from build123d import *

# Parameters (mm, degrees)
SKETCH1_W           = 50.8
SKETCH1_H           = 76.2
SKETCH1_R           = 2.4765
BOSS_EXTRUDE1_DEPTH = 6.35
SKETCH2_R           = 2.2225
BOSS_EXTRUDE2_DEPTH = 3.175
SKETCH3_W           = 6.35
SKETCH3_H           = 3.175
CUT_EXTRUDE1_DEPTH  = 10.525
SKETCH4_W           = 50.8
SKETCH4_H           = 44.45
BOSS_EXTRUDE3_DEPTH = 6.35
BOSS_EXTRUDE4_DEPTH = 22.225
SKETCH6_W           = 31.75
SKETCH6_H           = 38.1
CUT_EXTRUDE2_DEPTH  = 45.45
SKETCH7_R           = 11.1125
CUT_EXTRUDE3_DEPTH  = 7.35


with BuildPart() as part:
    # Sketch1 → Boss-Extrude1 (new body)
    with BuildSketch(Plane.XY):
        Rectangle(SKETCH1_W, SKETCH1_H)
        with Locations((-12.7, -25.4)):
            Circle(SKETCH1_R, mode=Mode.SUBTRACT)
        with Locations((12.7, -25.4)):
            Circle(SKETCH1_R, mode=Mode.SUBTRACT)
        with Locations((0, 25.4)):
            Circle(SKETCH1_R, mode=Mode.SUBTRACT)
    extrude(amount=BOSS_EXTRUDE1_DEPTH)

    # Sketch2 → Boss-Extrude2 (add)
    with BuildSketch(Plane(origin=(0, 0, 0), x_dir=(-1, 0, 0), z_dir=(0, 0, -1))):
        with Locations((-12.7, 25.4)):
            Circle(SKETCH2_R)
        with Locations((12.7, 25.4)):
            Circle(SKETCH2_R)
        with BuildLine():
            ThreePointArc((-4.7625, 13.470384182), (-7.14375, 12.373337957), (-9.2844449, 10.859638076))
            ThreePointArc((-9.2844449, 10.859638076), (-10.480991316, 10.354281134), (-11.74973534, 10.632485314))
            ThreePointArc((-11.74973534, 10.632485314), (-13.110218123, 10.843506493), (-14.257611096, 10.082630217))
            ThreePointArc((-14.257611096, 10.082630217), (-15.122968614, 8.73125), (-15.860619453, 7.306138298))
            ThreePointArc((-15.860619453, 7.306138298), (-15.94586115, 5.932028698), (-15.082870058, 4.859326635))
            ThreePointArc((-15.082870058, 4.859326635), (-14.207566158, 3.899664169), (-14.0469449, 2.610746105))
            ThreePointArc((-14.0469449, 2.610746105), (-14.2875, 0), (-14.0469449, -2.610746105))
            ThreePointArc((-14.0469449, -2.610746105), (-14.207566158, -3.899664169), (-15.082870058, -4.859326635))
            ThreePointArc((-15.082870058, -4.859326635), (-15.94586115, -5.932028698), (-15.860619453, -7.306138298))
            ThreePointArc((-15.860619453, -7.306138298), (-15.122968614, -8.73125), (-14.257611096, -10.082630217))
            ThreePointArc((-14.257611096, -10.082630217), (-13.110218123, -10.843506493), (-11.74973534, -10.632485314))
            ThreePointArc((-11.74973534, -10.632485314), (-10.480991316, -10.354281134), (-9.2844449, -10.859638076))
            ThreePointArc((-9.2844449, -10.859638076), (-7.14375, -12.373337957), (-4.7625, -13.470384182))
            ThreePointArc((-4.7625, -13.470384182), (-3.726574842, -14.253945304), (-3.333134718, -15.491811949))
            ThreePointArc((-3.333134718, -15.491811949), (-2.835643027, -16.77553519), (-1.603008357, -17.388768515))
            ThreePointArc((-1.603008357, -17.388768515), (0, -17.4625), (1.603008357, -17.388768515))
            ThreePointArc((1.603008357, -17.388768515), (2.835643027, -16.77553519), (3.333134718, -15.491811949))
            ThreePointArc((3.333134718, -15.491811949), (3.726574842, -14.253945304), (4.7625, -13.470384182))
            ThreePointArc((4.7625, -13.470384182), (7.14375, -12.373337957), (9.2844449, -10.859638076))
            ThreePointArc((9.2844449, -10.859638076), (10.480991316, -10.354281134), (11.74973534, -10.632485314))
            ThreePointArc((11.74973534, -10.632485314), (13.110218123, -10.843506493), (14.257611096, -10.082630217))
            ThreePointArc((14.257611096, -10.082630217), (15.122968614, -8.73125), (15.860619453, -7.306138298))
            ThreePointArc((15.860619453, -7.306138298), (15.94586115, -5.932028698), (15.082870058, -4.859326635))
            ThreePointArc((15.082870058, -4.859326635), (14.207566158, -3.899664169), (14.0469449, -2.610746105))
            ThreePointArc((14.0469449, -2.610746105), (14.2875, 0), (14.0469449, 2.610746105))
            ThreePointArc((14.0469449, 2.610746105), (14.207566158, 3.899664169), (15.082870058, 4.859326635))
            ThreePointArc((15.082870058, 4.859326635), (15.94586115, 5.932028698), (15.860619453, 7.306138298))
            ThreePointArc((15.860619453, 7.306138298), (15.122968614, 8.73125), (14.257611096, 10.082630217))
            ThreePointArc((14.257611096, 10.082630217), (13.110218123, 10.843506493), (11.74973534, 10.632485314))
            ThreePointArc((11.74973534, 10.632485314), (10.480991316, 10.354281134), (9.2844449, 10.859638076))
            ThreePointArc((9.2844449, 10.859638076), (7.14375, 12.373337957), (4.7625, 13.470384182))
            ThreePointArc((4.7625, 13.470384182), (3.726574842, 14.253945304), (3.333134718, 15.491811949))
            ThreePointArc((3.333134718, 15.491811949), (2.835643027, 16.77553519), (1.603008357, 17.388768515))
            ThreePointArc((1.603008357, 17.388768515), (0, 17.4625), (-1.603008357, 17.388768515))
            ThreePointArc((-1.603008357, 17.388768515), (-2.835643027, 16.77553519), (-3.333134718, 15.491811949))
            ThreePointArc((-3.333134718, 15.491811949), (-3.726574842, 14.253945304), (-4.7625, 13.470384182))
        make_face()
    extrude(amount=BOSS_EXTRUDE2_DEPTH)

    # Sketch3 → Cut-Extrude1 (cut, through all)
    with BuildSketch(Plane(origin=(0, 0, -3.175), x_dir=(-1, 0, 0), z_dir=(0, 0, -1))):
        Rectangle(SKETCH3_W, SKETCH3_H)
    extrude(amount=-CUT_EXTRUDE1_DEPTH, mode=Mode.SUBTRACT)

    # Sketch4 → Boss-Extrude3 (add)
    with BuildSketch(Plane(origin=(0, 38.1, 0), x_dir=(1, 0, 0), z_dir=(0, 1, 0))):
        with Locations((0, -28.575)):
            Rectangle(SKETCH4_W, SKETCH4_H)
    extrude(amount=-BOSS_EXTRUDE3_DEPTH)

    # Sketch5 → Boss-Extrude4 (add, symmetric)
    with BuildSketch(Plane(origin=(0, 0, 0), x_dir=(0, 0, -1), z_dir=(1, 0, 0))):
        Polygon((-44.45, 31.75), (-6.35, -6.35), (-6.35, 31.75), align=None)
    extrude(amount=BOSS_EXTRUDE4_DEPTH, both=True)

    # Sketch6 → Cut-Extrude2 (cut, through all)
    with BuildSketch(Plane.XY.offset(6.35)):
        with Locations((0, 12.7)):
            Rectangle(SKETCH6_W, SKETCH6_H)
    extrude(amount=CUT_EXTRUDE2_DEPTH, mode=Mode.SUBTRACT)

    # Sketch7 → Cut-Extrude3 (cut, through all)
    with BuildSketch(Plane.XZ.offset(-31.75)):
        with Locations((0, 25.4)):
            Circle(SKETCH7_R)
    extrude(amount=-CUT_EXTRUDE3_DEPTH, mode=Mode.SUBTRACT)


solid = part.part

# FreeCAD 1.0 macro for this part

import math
import FreeCAD as App
import Part
import Sketcher
Q = App.Units.Quantity

doc = App.newDocument("Part")
body = doc.addObject("PartDesign::Body", "Body")

# Sketch on XY plane
sketch1 = body.newObject("Sketcher::SketchObject", "Sketch")
sketch1.AttachmentSupport = (doc.getObject("XY_Plane"), [""])
sketch1.MapMode = "FlatFace"
sketch1.addGeometry([
    Part.LineSegment(App.Vector(-25.4, 38.1, 0), App.Vector(-25.4, -38.1, 0)),  # 0
    Part.LineSegment(App.Vector(-25.4, -38.1, 0), App.Vector(25.4, -38.1, 0)),  # 1
    Part.LineSegment(App.Vector(25.4, -38.1, 0), App.Vector(25.4, 38.1, 0)),  # 2
    Part.LineSegment(App.Vector(25.4, 38.1, 0), App.Vector(-25.4, 38.1, 0)),  # 3
    Part.Circle(App.Vector(-12.7, -25.4, 0), App.Vector(0, 0, 1), 2.5),  # 4
    Part.Circle(App.Vector(12.7, -25.4, 0), App.Vector(0, 0, 1), 2.5),  # 5
    Part.Circle(App.Vector(0, 25.4, 0), App.Vector(0, 0, 1), 2.5),  # 6
], False)
sketch1.addConstraint([
    Sketcher.Constraint("Coincident", 0, 2, 1, 1),
    Sketcher.Constraint("Coincident", 1, 2, 2, 1),
    Sketcher.Constraint("Coincident", 2, 2, 3, 1),
    Sketcher.Constraint("Coincident", 3, 2, 0, 1),
    Sketcher.Constraint("Vertical", 0),
    Sketcher.Constraint("Horizontal", 1),
    Sketcher.Constraint("Vertical", 2),
    Sketcher.Constraint("Horizontal", 3),
    Sketcher.Constraint("Equal", 4, 5),
    Sketcher.Constraint("Equal", 5, 6),
    Sketcher.Constraint("Symmetric", 0, 2, 2, 2, -1, 1),
    Sketcher.Constraint("Symmetric", 4, 3, 5, 3, -2),
    Sketcher.Constraint("PointOnObject", 6, 3, -2),
    Sketcher.Constraint("DistanceX", 1, 1, 1, 2, Q("2 in")),
    Sketcher.Constraint("DistanceY", 0, 2, 0, 1, Q("3 in")),
    Sketcher.Constraint("Diameter", 4, Q("0.195 in")),
    Sketcher.Constraint("DistanceY", 4, 3, -1, 1, Q("1 in")),
    Sketcher.Constraint("DistanceY", -1, 1, 6, 3, Q("1 in")),
    Sketcher.Constraint("DistanceX", 4, 3, 5, 3, Q("1 in")),
])
pad1 = body.newObject("PartDesign::Pad", "Pad")
pad1.Profile = sketch1
pad1.Length = Q("0.25 in")

# Sketch on XY plane
sketch2 = body.newObject("Sketcher::SketchObject", "Sketch001")
sketch2.AttachmentSupport = (doc.getObject("XY_Plane"), [""])
sketch2.MapMode = "FlatFace"
sketch2.addGeometry([
    Part.Circle(App.Vector(12.7, 25.4, 0), App.Vector(0, 0, 1), 2.2),  # 0
    Part.Circle(App.Vector(-12.7, 25.4, 0), App.Vector(0, 0, 1), 2.2),  # 1
    Part.ArcOfCircle(Part.Circle(App.Vector(0, 0, 0), App.Vector(0, 0, 1), 14.3), math.radians(49), math.radians(71)),  # 2
    Part.ArcOfCircle(Part.Circle(App.Vector(10.7, 12.5, 0), App.Vector(0, 0, 1), 2.1), math.radians(-131), math.radians(-60)),  # 3
    Part.ArcOfCircle(Part.Circle(App.Vector(12.7, 9, 0), App.Vector(0, 0, 1), 1.9), math.radians(35), math.radians(120)),  # 4
    Part.ArcOfCircle(Part.Circle(App.Vector(0, 0, 0), App.Vector(0, 0, 1), 17.5), math.radians(24.73), math.radians(35.27)),  # 5
    Part.ArcOfCircle(Part.Circle(App.Vector(14.1, 6.5, 0), App.Vector(0, 0, 1), 1.9), math.radians(-60), math.radians(25)),  # 6
    Part.ArcOfCircle(Part.Circle(App.Vector(16.2, 3, 0), App.Vector(0, 0, 1), 2.1), math.radians(120), math.radians(191)),  # 7
    Part.ArcOfCircle(Part.Circle(App.Vector(0, 0, 0), App.Vector(0, 0, 1), 14.3), math.radians(-11), math.radians(11)),  # 8
    Part.ArcOfCircle(Part.Circle(App.Vector(16.2, -3, 0), App.Vector(0, 0, 1), 2.1), math.radians(169), math.radians(240)),  # 9
    Part.ArcOfCircle(Part.Circle(App.Vector(14.1, -6.5, 0), App.Vector(0, 0, 1), 1.9), math.radians(-25), math.radians(60)),  # 10
    Part.ArcOfCircle(Part.Circle(App.Vector(0, 0, 0), App.Vector(0, 0, 1), 17.5), math.radians(-35.27), math.radians(-24.73)),  # 11
    Part.ArcOfCircle(Part.Circle(App.Vector(12.7, -9, 0), App.Vector(0, 0, 1), 1.9), math.radians(-120), math.radians(-35)),  # 12
    Part.ArcOfCircle(Part.Circle(App.Vector(10.7, -12.5, 0), App.Vector(0, 0, 1), 2.1), math.radians(60), math.radians(131)),  # 13
    Part.ArcOfCircle(Part.Circle(App.Vector(0, 0, 0), App.Vector(0, 0, 1), 14.3), math.radians(-71), math.radians(-49)),  # 14
    Part.ArcOfCircle(Part.Circle(App.Vector(5.5, -15.5, 0), App.Vector(0, 0, 1), 2.1), math.radians(109), math.radians(180)),  # 15
    Part.ArcOfCircle(Part.Circle(App.Vector(1.4, -15.5, 0), App.Vector(0, 0, 1), 1.9), math.radians(-85), math.radians(0)),  # 16
    Part.ArcOfCircle(Part.Circle(App.Vector(0, 0, 0), App.Vector(0, 0, 1), 17.5), math.radians(-95.27), math.radians(-84.73)),  # 17
    Part.ArcOfCircle(Part.Circle(App.Vector(-1.4, -15.5, 0), App.Vector(0, 0, 1), 1.9), math.radians(-180), math.radians(-95)),  # 18
    Part.ArcOfCircle(Part.Circle(App.Vector(-5.5, -15.5, 0), App.Vector(0, 0, 1), 2.1), math.radians(0), math.radians(71)),  # 19
    Part.ArcOfCircle(Part.Circle(App.Vector(0, 0, 0), App.Vector(0, 0, 1), 14.3), math.radians(-131), math.radians(-109)),  # 20
    Part.ArcOfCircle(Part.Circle(App.Vector(-10.7, -12.5, 0), App.Vector(0, 0, 1), 2.1), math.radians(49), math.radians(120)),  # 21
    Part.ArcOfCircle(Part.Circle(App.Vector(-12.7, -9, 0), App.Vector(0, 0, 1), 1.9), math.radians(-145), math.radians(-60)),  # 22
    Part.ArcOfCircle(Part.Circle(App.Vector(0, 0, 0), App.Vector(0, 0, 1), 17.5), math.radians(-155.27), math.radians(-144.73)),  # 23
    Part.ArcOfCircle(Part.Circle(App.Vector(-14.1, -6.5, 0), App.Vector(0, 0, 1), 1.9), math.radians(120), math.radians(205)),  # 24
    Part.ArcOfCircle(Part.Circle(App.Vector(-16.2, -3, 0), App.Vector(0, 0, 1), 2.1), math.radians(-60), math.radians(11)),  # 25
    Part.ArcOfCircle(Part.Circle(App.Vector(0, 0, 0), App.Vector(0, 0, 1), 14.3), math.radians(169), math.radians(191)),  # 26
    Part.ArcOfCircle(Part.Circle(App.Vector(-16.2, 3, 0), App.Vector(0, 0, 1), 2.1), math.radians(-11), math.radians(60)),  # 27
    Part.ArcOfCircle(Part.Circle(App.Vector(-14.1, 6.5, 0), App.Vector(0, 0, 1), 1.9), math.radians(155), math.radians(240)),  # 28
    Part.ArcOfCircle(Part.Circle(App.Vector(0, 0, 0), App.Vector(0, 0, 1), 17.5), math.radians(144.73), math.radians(155.27)),  # 29
    Part.ArcOfCircle(Part.Circle(App.Vector(-12.7, 9, 0), App.Vector(0, 0, 1), 1.9), math.radians(60), math.radians(145)),  # 30
    Part.ArcOfCircle(Part.Circle(App.Vector(-10.7, 12.5, 0), App.Vector(0, 0, 1), 2.1), math.radians(-120), math.radians(-49)),  # 31
    Part.ArcOfCircle(Part.Circle(App.Vector(0, 0, 0), App.Vector(0, 0, 1), 14.3), math.radians(109), math.radians(131)),  # 32
    Part.ArcOfCircle(Part.Circle(App.Vector(-5.5, 15.5, 0), App.Vector(0, 0, 1), 2.1), math.radians(-71), math.radians(0)),  # 33
    Part.ArcOfCircle(Part.Circle(App.Vector(-1.4, 15.5, 0), App.Vector(0, 0, 1), 1.9), math.radians(95), math.radians(180)),  # 34
    Part.ArcOfCircle(Part.Circle(App.Vector(0, 0, 0), App.Vector(0, 0, 1), 17.5), math.radians(84.73), math.radians(95.27)),  # 35
    Part.ArcOfCircle(Part.Circle(App.Vector(1.4, 15.5, 0), App.Vector(0, 0, 1), 1.9), math.radians(0), math.radians(85)),  # 36
    Part.ArcOfCircle(Part.Circle(App.Vector(5.5, 15.5, 0), App.Vector(0, 0, 1), 2.1), math.radians(180), math.radians(251)),  # 37
], False)
sketch2.addConstraint([
    Sketcher.Constraint("Tangent", 2, 1, 3, 1),
    Sketcher.Constraint("Tangent", 3, 2, 4, 2),
    Sketcher.Constraint("Tangent", 4, 1, 5, 2),
    Sketcher.Constraint("Tangent", 5, 1, 6, 2),
    Sketcher.Constraint("Tangent", 6, 1, 7, 1),
    Sketcher.Constraint("Tangent", 7, 2, 8, 2),
    Sketcher.Constraint("Tangent", 8, 1, 9, 1),
    Sketcher.Constraint("Tangent", 9, 2, 10, 2),
    Sketcher.Constraint("Tangent", 10, 1, 11, 2),
    Sketcher.Constraint("Tangent", 11, 1, 12, 2),
    Sketcher.Constraint("Tangent", 12, 1, 13, 1),
    Sketcher.Constraint("Tangent", 13, 2, 14, 2),
    Sketcher.Constraint("Tangent", 14, 1, 15, 1),
    Sketcher.Constraint("Tangent", 15, 2, 16, 2),
    Sketcher.Constraint("Tangent", 16, 1, 17, 2),
    Sketcher.Constraint("Tangent", 17, 1, 18, 2),
    Sketcher.Constraint("Tangent", 18, 1, 19, 1),
    Sketcher.Constraint("Tangent", 19, 2, 20, 2),
    Sketcher.Constraint("Tangent", 20, 1, 21, 1),
    Sketcher.Constraint("Tangent", 21, 2, 22, 2),
    Sketcher.Constraint("Tangent", 22, 1, 23, 2),
    Sketcher.Constraint("Tangent", 23, 1, 24, 2),
    Sketcher.Constraint("Tangent", 24, 1, 25, 1),
    Sketcher.Constraint("Tangent", 25, 2, 26, 2),
    Sketcher.Constraint("Tangent", 26, 1, 27, 1),
    Sketcher.Constraint("Tangent", 27, 2, 28, 2),
    Sketcher.Constraint("Tangent", 28, 1, 29, 2),
    Sketcher.Constraint("Tangent", 29, 1, 30, 2),
    Sketcher.Constraint("Tangent", 30, 1, 31, 1),
    Sketcher.Constraint("Tangent", 31, 2, 32, 2),
    Sketcher.Constraint("Tangent", 32, 1, 33, 1),
    Sketcher.Constraint("Tangent", 33, 2, 34, 2),
    Sketcher.Constraint("Tangent", 34, 1, 35, 2),
    Sketcher.Constraint("Tangent", 35, 1, 36, 2),
    Sketcher.Constraint("Tangent", 36, 1, 37, 1),
    Sketcher.Constraint("Tangent", 37, 2, 2, 2),
    Sketcher.Constraint("Coincident", 2, 3, -1, 1),
    Sketcher.Constraint("Coincident", 5, 3, -1, 1),
    Sketcher.Constraint("Coincident", 8, 3, -1, 1),
    Sketcher.Constraint("Coincident", 11, 3, -1, 1),
    Sketcher.Constraint("Coincident", 14, 3, -1, 1),
    Sketcher.Constraint("Coincident", 17, 3, -1, 1),
    Sketcher.Constraint("Coincident", 20, 3, -1, 1),
    Sketcher.Constraint("Coincident", 23, 3, -1, 1),
    Sketcher.Constraint("Coincident", 26, 3, -1, 1),
    Sketcher.Constraint("Coincident", 29, 3, -1, 1),
    Sketcher.Constraint("Coincident", 32, 3, -1, 1),
    Sketcher.Constraint("Coincident", 35, 3, -1, 1),
    Sketcher.Constraint("Equal", 0, 1),
    Sketcher.Constraint("Equal", 4, 6),
    Sketcher.Constraint("Equal", 3, 7),
    Sketcher.Constraint("Equal", 2, 8),
    Sketcher.Constraint("Equal", 7, 9),
    Sketcher.Constraint("Equal", 6, 10),
    Sketcher.Constraint("Equal", 5, 11),
    Sketcher.Constraint("Equal", 10, 12),
    Sketcher.Constraint("Equal", 9, 13),
    Sketcher.Constraint("Equal", 8, 14),
    Sketcher.Constraint("Equal", 13, 15),
    Sketcher.Constraint("Equal", 12, 16),
    Sketcher.Constraint("Equal", 11, 17),
    Sketcher.Constraint("Equal", 16, 18),
    Sketcher.Constraint("Equal", 15, 19),
    Sketcher.Constraint("Equal", 14, 20),
    Sketcher.Constraint("Equal", 19, 21),
    Sketcher.Constraint("Equal", 18, 22),
    Sketcher.Constraint("Equal", 17, 23),
    Sketcher.Constraint("Equal", 22, 24),
    Sketcher.Constraint("Equal", 21, 25),
    Sketcher.Constraint("Equal", 20, 26),
    Sketcher.Constraint("Equal", 25, 27),
    Sketcher.Constraint("Equal", 24, 28),
    Sketcher.Constraint("Equal", 23, 29),
    Sketcher.Constraint("Equal", 28, 30),
    Sketcher.Constraint("Equal", 27, 31),
    Sketcher.Constraint("Equal", 26, 32),
    Sketcher.Constraint("Equal", 31, 33),
    Sketcher.Constraint("Equal", 30, 34),
    Sketcher.Constraint("Equal", 29, 35),
    Sketcher.Constraint("Equal", 34, 36),
    Sketcher.Constraint("Equal", 33, 37),
    Sketcher.Constraint("Symmetric", 0, 3, 1, 3, -2),
    Sketcher.Constraint("Horizontal", 15, 3, 16, 3),
    Sketcher.Constraint("Horizontal", 16, 3, 18, 3),
    Sketcher.Constraint("Horizontal", 13, 3, 21, 3),
    Sketcher.Constraint("Horizontal", 10, 3, 24, 3),
    Sketcher.Constraint("Horizontal", 7, 3, 27, 3),
    Sketcher.Constraint("Horizontal", 4, 3, 30, 3),
    Sketcher.Constraint("Horizontal", 33, 3, 34, 3),
    Sketcher.Constraint("Horizontal", 34, 3, 36, 3),
    Sketcher.Constraint("Vertical", 7, 3, 9, 3),
    Sketcher.Constraint("Vertical", 4, 3, 12, 3),
    Sketcher.Constraint("Diameter", 0, Q("0.175 in")),
    Sketcher.Constraint("DistanceY", -1, 1, 0, 3, Q("1 in")),
    Sketcher.Constraint("Radius", 2, Q("0.5625 in")),
    Sketcher.Constraint("Radius", 4, Q("0.075 in")),
    Sketcher.Constraint("Radius", 5, Q("0.6875 in")),
    Sketcher.Constraint("DistanceX", -1, 1, 0, 3, Q("0.5 in")),
    Sketcher.Constraint("DistanceX", -1, 1, 14, 1, Q("0.1875 in")),
    Sketcher.Constraint("DistanceX", -1, 1, 3, 3, 10.677711),
    Sketcher.Constraint("DistanceX", -1, 1, 6, 3, 14.13037),
])
pad2 = body.newObject("PartDesign::Pad", "Pad001")
pad2.Profile = sketch2
pad2.Length = Q("0.125 in")
pad2.Reversed = True

# Sketch on XY plane
sketch3 = body.newObject("Sketcher::SketchObject", "Sketch002")
sketch3.AttachmentSupport = (doc.getObject("XY_Plane"), [""])
sketch3.MapMode = "FlatFace"
sketch3.AttachmentOffset = App.Placement(App.Vector(0, 0, -0.125 * 25.4), App.Rotation())
sketch3.addGeometry([
    Part.LineSegment(App.Vector(3.2, 1.6, 0), App.Vector(3.2, -1.6, 0)),
    Part.LineSegment(App.Vector(3.2, -1.6, 0), App.Vector(-3.2, -1.6, 0)),
    Part.LineSegment(App.Vector(-3.2, -1.6, 0), App.Vector(-3.2, 1.6, 0)),
    Part.LineSegment(App.Vector(-3.2, 1.6, 0), App.Vector(3.2, 1.6, 0)),
], False)
sketch3.addConstraint([
    Sketcher.Constraint("Coincident", 0, 2, 1, 1),
    Sketcher.Constraint("Coincident", 1, 2, 2, 1),
    Sketcher.Constraint("Coincident", 2, 2, 3, 1),
    Sketcher.Constraint("Coincident", 3, 2, 0, 1),
    Sketcher.Constraint("Vertical", 0),
    Sketcher.Constraint("Horizontal", 1),
    Sketcher.Constraint("Vertical", 2),
    Sketcher.Constraint("Horizontal", 3),
    Sketcher.Constraint("Symmetric", 0, 2, 2, 2, -1, 1),
    Sketcher.Constraint("DistanceX", 1, 2, 1, 1, Q("0.25 in")),
    Sketcher.Constraint("DistanceY", 0, 2, 0, 1, Q("0.125 in")),
])
pocket1 = body.newObject("PartDesign::Pocket", "Pocket")
pocket1.Profile = sketch3
pocket1.Type = "ThroughAll"
pocket1.Reversed = True

# Sketch on XZ plane
sketch4 = body.newObject("Sketcher::SketchObject", "Sketch003")
sketch4.AttachmentSupport = (doc.getObject("XZ_Plane"), [""])
sketch4.MapMode = "FlatFace"
sketch4.AttachmentOffset = App.Placement(App.Vector(0, 0, -1.5 * 25.4), App.Rotation())
sketch4.addGeometry([
    Part.LineSegment(App.Vector(-25, 6, 0), App.Vector(-25, 51, 0)),
    Part.LineSegment(App.Vector(-25, 51, 0), App.Vector(25, 51, 0)),
    Part.LineSegment(App.Vector(25, 51, 0), App.Vector(25, 6, 0)),
    Part.LineSegment(App.Vector(25, 6, 0), App.Vector(-25, 6, 0)),
], False)
sketch4.addConstraint([
    Sketcher.Constraint("Coincident", 0, 2, 1, 1),
    Sketcher.Constraint("Coincident", 1, 2, 2, 1),
    Sketcher.Constraint("Coincident", 2, 2, 3, 1),
    Sketcher.Constraint("Coincident", 3, 2, 0, 1),
    Sketcher.Constraint("Vertical", 0),
    Sketcher.Constraint("Horizontal", 1),
    Sketcher.Constraint("Vertical", 2),
    Sketcher.Constraint("Horizontal", 3),
    Sketcher.Constraint("DistanceX", 1, 1, 1, 2, Q("2 in")),
    Sketcher.Constraint("DistanceX", 0, 2, -1, 1, Q("1 in")),
    Sketcher.Constraint("DistanceY", -1, 1, 0, 2, Q("2 in")),
    Sketcher.Constraint("DistanceY", 0, 1, 0, 2, Q("1.75 in")),
])
pad3 = body.newObject("PartDesign::Pad", "Pad002")
pad3.Profile = sketch4
pad3.Length = Q("0.25 in")

# Sketch on YZ plane
sketch5 = body.newObject("Sketcher::SketchObject", "Sketch004")
sketch5.AttachmentSupport = (doc.getObject("YZ_Plane"), [""])
sketch5.MapMode = "FlatFace"
sketch5.addGeometry([
    Part.LineSegment(App.Vector(32, 44, 0), App.Vector(-6, 6, 0)),
    Part.LineSegment(App.Vector(-6, 6, 0), App.Vector(32, 6, 0)),
    Part.LineSegment(App.Vector(32, 6, 0), App.Vector(32, 44, 0)),
], False)
sketch5.addConstraint([
    Sketcher.Constraint("Coincident", 0, 2, 1, 1),
    Sketcher.Constraint("Coincident", 1, 2, 2, 1),
    Sketcher.Constraint("Coincident", 2, 2, 0, 1),
    Sketcher.Constraint("Horizontal", 1),
    Sketcher.Constraint("Vertical", 2),
    Sketcher.Constraint("Equal", 1, 2),
    Sketcher.Constraint("DistanceX", 1, 1, 1, 2, Q("1.5 in")),
    Sketcher.Constraint("DistanceX", 0, 2, -1, 1, Q("0.25 in")),
    Sketcher.Constraint("DistanceY", -1, 1, 0, 2, Q("0.25 in")),
])
pad4 = body.newObject("PartDesign::Pad", "Pad003")
pad4.Profile = sketch5
pad4.Length = Q("1.75 in")
pad4.Midplane = True

# Sketch on XY plane
sketch6 = body.newObject("Sketcher::SketchObject", "Sketch005")
sketch6.AttachmentSupport = (doc.getObject("XY_Plane"), [""])
sketch6.MapMode = "FlatFace"
sketch6.AttachmentOffset = App.Placement(App.Vector(0, 0, 0.25 * 25.4), App.Rotation())
sketch6.addGeometry([
    Part.LineSegment(App.Vector(-16, 32, 0), App.Vector(-16, -6, 0)),
    Part.LineSegment(App.Vector(-16, -6, 0), App.Vector(16, -6, 0)),
    Part.LineSegment(App.Vector(16, -6, 0), App.Vector(16, 32, 0)),
    Part.LineSegment(App.Vector(16, 32, 0), App.Vector(-16, 32, 0)),
], False)
sketch6.addConstraint([
    Sketcher.Constraint("Coincident", 0, 2, 1, 1),
    Sketcher.Constraint("Coincident", 1, 2, 2, 1),
    Sketcher.Constraint("Coincident", 2, 2, 3, 1),
    Sketcher.Constraint("Coincident", 3, 2, 0, 1),
    Sketcher.Constraint("Vertical", 0),
    Sketcher.Constraint("Horizontal", 1),
    Sketcher.Constraint("Vertical", 2),
    Sketcher.Constraint("Horizontal", 3),
    Sketcher.Constraint("DistanceY", 0, 2, 0, 1, Q("1.5 in")),
    Sketcher.Constraint("DistanceX", 1, 1, 1, 2, Q("1.25 in")),
    Sketcher.Constraint("DistanceY", 0, 2, -1, 1, Q("0.25 in")),
    Sketcher.Constraint("DistanceX", 0, 2, -1, 1, Q("0.625 in")),
])
pocket2 = body.newObject("PartDesign::Pocket", "Pocket001")
pocket2.Profile = sketch6
pocket2.Type = "ThroughAll"
pocket2.Reversed = True

# Sketch on XZ plane
sketch7 = body.newObject("Sketcher::SketchObject", "Sketch006")
sketch7.AttachmentSupport = (doc.getObject("XZ_Plane"), [""])
sketch7.MapMode = "FlatFace"
sketch7.AttachmentOffset = App.Placement(App.Vector(0, 0, -1.25 * 25.4), App.Rotation())
sketch7.addGeometry(Part.Circle(App.Vector(0, 25, 0), App.Vector(0, 0, 1), 11), False)
sketch7.addConstraint([
    Sketcher.Constraint("PointOnObject", 0, 3, -2),
    Sketcher.Constraint("Diameter", 0, Q("0.875 in")),
    Sketcher.Constraint("DistanceY", -1, 1, 0, 3, Q("1 in")),
])
pocket3 = body.newObject("PartDesign::Pocket", "Pocket002")
pocket3.Profile = sketch7
pocket3.Type = "ThroughAll"

doc.recompute()
